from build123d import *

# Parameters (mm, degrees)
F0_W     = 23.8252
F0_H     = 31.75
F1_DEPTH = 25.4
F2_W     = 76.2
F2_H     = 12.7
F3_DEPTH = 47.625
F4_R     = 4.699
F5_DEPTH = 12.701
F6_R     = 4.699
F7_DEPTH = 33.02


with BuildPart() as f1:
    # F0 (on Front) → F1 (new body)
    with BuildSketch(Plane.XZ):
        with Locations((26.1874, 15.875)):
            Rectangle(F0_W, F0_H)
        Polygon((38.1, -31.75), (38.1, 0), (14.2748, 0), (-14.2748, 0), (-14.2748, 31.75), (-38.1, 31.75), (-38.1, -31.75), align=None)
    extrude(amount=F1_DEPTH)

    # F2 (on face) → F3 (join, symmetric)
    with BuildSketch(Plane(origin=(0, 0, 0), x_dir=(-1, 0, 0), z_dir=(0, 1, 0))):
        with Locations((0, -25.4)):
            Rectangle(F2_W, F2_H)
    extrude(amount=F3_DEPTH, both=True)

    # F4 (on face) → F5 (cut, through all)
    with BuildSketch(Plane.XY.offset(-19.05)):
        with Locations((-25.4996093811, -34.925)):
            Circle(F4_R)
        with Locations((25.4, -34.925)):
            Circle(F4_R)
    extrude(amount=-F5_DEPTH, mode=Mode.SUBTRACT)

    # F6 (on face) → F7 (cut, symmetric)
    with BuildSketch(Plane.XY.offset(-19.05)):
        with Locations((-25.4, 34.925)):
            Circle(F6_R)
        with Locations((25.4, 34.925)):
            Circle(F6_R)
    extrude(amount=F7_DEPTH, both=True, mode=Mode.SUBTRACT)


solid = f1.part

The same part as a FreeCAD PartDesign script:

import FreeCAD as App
import Part
import Sketcher
from FreeCAD import Vector
Q = App.Units.Quantity

doc = App.newDocument("Part")
body = doc.addObject("PartDesign::Body", "Body")

sketch1 = doc.addObject("Sketcher::SketchObject", "Sketch")
body.addObject(sketch1)
sketch1.AttachmentSupport = (doc.XZ_Plane, [""])
sketch1.MapMode = "FlatFace"
sketch1.addGeometry(Part.LineSegment(Vector(14, 32, 0), Vector(14, 0, 0)), False)
sketch1.addGeometry(Part.LineSegment(Vector(14, 0, 0), Vector(-14, 0, 0)), False)
sketch1.addGeometry(Part.LineSegment(Vector(-14, 0, 0), Vector(-14, 32, 0)), False)
sketch1.addGeometry(Part.LineSegment(Vector(-14, 32, 0), Vector(-38, 32, 0)), False)
sketch1.addGeometry(Part.LineSegment(Vector(-38, 32, 0), Vector(-38, -32, 0)), False)
sketch1.addGeometry(Part.LineSegment(Vector(-38, -32, 0), Vector(38, -32, 0)), False)
sketch1.addGeometry(Part.LineSegment(Vector(38, -32, 0), Vector(38, 32, 0)), False)
sketch1.addGeometry(Part.LineSegment(Vector(38, 32, 0), Vector(14, 32, 0)), False)
sketch1.addConstraint(Sketcher.Constraint("Coincident", 0, 2, 1, 1))
sketch1.addConstraint(Sketcher.Constraint("Coincident", 1, 2, 2, 1))
sketch1.addConstraint(Sketcher.Constraint("Coincident", 2, 2, 3, 1))
sketch1.addConstraint(Sketcher.Constraint("Coincident", 3, 2, 4, 1))
sketch1.addConstraint(Sketcher.Constraint("Coincident", 4, 2, 5, 1))
sketch1.addConstraint(Sketcher.Constraint("Coincident", 5, 2, 6, 1))
sketch1.addConstraint(Sketcher.Constraint("Coincident", 6, 2, 7, 1))
sketch1.addConstraint(Sketcher.Constraint("Coincident", 7, 2, 0, 1))
sketch1.addConstraint(Sketcher.Constraint("Vertical", 0))
sketch1.addConstraint(Sketcher.Constraint("Horizontal", 1))
sketch1.addConstraint(Sketcher.Constraint("Vertical", 2))
sketch1.addConstraint(Sketcher.Constraint("Horizontal", 3))
sketch1.addConstraint(Sketcher.Constraint("Vertical", 4))
sketch1.addConstraint(Sketcher.Constraint("Horizontal", 5))
sketch1.addConstraint(Sketcher.Constraint("Vertical", 6))
sketch1.addConstraint(Sketcher.Constraint("Horizontal", 7))
sketch1.addConstraint(Sketcher.Constraint("Symmetric", 0, 2, 1, 2, -1, 1))
sketch1.addConstraint(Sketcher.Constraint("Symmetric", 3, 2, 5, 2, -1, 1))
sketch1.addConstraint(Sketcher.Constraint("Horizontal", 3, 2, 6, 2))
sketch1.addConstraint(Sketcher.Constraint("DistanceX", 5, 1, 5, 2, Q("3 in")))
sketch1.addConstraint(Sketcher.Constraint("DistanceY", 4, 2, 4, 1, Q("2.5 in")))
sketch1.addConstraint(Sketcher.Constraint("DistanceX", 1, 2, 1, 1, Q("1.124 in")))
pad1 = doc.addObject("PartDesign::Pad", "Pad")
body.addObject(pad1)
pad1.Profile = sketch1
pad1.Length = Q("1 in")

sketch2 = doc.addObject("Sketcher::SketchObject", "Sketch001")
body.addObject(sketch2)
sketch2.AttachmentSupport = (doc.XZ_Plane, [""])
sketch2.MapMode = "FlatFace"
sketch2.addGeometry(Part.LineSegment(Vector(38, -19, 0), Vector(38, -32, 0)), False)
sketch2.addGeometry(Part.LineSegment(Vector(38, -32, 0), Vector(-38, -32, 0)), False)
sketch2.addGeometry(Part.LineSegment(Vector(-38, -32, 0), Vector(-38, -19, 0)), False)
sketch2.addGeometry(Part.LineSegment(Vector(-38, -19, 0), Vector(38, -19, 0)), False)
sketch2.addConstraint(Sketcher.Constraint("Coincident", 0, 2, 1, 1))
sketch2.addConstraint(Sketcher.Constraint("Coincident", 1, 2, 2, 1))
sketch2.addConstraint(Sketcher.Constraint("Coincident", 2, 2, 3, 1))
sketch2.addConstraint(Sketcher.Constraint("Coincident", 3, 2, 0, 1))
sketch2.addConstraint(Sketcher.Constraint("Vertical", 0))
sketch2.addConstraint(Sketcher.Constraint("Horizontal", 1))
sketch2.addConstraint(Sketcher.Constraint("Vertical", 2))
sketch2.addConstraint(Sketcher.Constraint("Horizontal", 3))
sketch2.addConstraint(Sketcher.Constraint("DistanceX", 1, 2, 1, 1, Q("3 in")))
sketch2.addConstraint(Sketcher.Constraint("DistanceY", 0, 2, 0, 1, Q("0.5 in")))
sketch2.addConstraint(Sketcher.Constraint("DistanceX", -1, 1, 0, 2, Q("1.5 in")))
sketch2.addConstraint(Sketcher.Constraint("DistanceY", 0, 2, -1, 1, Q("1.25 in")))
pad2 = doc.addObject("PartDesign::Pad", "Pad001")
body.addObject(pad2)
pad2.Profile = sketch2
pad2.Length = Q("3.75 in")
pad2.Midplane = True

sketch3 = doc.addObject("Sketcher::SketchObject", "Sketch002")
body.addObject(sketch3)
sketch3.AttachmentSupport = (doc.XY_Plane, [""])
sketch3.MapMode = "FlatFace"
sketch3.AttachmentOffset = App.Placement(Vector(0, 0, -0.75 * 25.4), App.Rotation())
sketch3.addGeometry(Part.Circle(Vector(-25.5, -34.9, 0), Vector(0, 0, 1), 4.7), False)
sketch3.addGeometry(Part.Circle(Vector(25.4, -34.9, 0), Vector(0, 0, 1), 4.7), False)
sketch3.addConstraint(Sketcher.Constraint("Equal", 0, 1))
sketch3.addConstraint(Sketcher.Constraint("Horizontal", 0, 3, 1, 3))
sketch3.addConstraint(Sketcher.Constraint("Diameter", 0, Q("0.37 in")))
sketch3.addConstraint(Sketcher.Constraint("DistanceX", -1, 1, 1, 3, Q("1 in")))
sketch3.addConstraint(Sketcher.Constraint("DistanceY", 0, 3, -1, 1, Q("1.375 in")))
sketch3.addConstraint(Sketcher.Constraint("DistanceX", 0, 3, -1, 1, Q("25.499609 mm")))
pocket1 = doc.addObject("PartDesign::Pocket", "Pocket")
body.addObject(pocket1)
pocket1.Profile = sketch3
pocket1.Type = "ThroughAll"

sketch4 = doc.addObject("Sketcher::SketchObject", "Sketch003")
body.addObject(sketch4)
sketch4.AttachmentSupport = (doc.XY_Plane, [""])
sketch4.MapMode = "FlatFace"
sketch4.AttachmentOffset = App.Placement(Vector(0, 0, -0.75 * 25.4), App.Rotation())
sketch4.addGeometry(Part.Circle(Vector(-25.4, 34.9, 0), Vector(0, 0, 1), 4.7), False)
sketch4.addGeometry(Part.Circle(Vector(25.4, 34.9, 0), Vector(0, 0, 1), 4.7), False)
sketch4.addConstraint(Sketcher.Constraint("Equal", 0, 1))
sketch4.addConstraint(Sketcher.Constraint("Symmetric", 0, 3, 1, 3, -2))
sketch4.addConstraint(Sketcher.Constraint("Diameter", 0, Q("0.37 in")))
sketch4.addConstraint(Sketcher.Constraint("DistanceX", 0, 3, -1, 1, Q("1 in")))
sketch4.addConstraint(Sketcher.Constraint("DistanceY", -1, 1, 0, 3, Q("1.375 in")))
pocket2 = doc.addObject("PartDesign::Pocket", "Pocket001")
body.addObject(pocket2)
pocket2.Profile = sketch4
pocket2.Length = Q("2.6 in")
pocket2.Midplane = True

doc.recompute()
